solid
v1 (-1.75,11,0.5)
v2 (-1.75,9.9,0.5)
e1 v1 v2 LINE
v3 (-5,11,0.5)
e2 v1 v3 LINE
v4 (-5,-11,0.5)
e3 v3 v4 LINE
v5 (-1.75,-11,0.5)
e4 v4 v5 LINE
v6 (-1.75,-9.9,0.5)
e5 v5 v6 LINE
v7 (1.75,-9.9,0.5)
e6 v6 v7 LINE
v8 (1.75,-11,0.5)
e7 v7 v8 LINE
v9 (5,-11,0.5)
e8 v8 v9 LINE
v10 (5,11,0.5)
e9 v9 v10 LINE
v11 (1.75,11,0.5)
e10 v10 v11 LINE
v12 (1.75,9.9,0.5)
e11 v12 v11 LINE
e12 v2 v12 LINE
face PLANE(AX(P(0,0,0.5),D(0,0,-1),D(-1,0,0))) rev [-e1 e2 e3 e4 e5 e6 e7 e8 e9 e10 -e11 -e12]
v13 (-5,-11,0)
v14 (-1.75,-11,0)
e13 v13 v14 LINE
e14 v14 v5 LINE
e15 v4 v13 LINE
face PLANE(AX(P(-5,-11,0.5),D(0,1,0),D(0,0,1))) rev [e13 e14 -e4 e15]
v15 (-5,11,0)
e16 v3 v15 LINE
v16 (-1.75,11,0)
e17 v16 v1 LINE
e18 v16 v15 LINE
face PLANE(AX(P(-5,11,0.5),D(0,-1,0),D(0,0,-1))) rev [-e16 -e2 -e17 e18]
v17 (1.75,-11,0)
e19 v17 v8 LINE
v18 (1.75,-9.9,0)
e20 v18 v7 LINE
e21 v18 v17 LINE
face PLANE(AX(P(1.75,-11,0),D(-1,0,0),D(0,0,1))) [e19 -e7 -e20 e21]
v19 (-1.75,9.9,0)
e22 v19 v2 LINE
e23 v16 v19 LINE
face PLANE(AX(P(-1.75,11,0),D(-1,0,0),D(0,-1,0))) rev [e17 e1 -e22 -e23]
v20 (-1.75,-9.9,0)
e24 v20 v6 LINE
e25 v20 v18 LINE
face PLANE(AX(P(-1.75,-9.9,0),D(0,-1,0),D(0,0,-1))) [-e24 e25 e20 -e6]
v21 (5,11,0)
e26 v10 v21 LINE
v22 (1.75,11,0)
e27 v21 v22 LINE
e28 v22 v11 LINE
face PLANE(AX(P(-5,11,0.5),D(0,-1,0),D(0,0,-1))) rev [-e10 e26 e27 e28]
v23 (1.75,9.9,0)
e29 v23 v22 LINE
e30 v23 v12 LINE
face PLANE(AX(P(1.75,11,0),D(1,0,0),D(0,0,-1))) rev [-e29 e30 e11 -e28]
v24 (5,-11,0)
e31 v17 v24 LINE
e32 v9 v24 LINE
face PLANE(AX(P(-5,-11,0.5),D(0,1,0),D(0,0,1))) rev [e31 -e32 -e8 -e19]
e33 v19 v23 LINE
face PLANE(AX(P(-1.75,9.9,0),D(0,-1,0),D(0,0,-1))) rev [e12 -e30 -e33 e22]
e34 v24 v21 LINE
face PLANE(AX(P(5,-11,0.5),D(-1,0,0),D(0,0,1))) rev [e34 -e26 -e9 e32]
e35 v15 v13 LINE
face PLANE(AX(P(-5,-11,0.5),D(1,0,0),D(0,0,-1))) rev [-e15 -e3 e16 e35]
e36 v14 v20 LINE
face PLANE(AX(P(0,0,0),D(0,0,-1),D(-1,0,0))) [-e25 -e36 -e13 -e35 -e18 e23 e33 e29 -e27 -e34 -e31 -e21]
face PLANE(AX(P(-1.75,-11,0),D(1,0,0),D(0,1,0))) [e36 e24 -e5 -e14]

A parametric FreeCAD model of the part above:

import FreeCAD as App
import Part
import Sketcher
Q = App.Units.Quantity

doc = App.newDocument("Part")
body = doc.addObject("PartDesign::Body", "Body")

# Sketch on XY plane
sketch1 = body.newObject("Sketcher::SketchObject", "Sketch")
sketch1.AttachmentSupport = (doc.getObject("XY_Plane"), [""])
sketch1.MapMode = "FlatFace"
sketch1.addGeometry([
    Part.LineSegment(App.Vector(-5, 11, 0), App.Vector(-5, -11, 0)),
    Part.LineSegment(App.Vector(-5, -11, 0), App.Vector(5, -11, 0)),
    Part.LineSegment(App.Vector(5, -11, 0), App.Vector(5, 11, 0)),
    Part.LineSegment(App.Vector(5, 11, 0), App.Vector(-5, 11, 0)),
], False)
sketch1.addConstraint([
    Sketcher.Constraint("Coincident", 0, 2, 1, 1),
    Sketcher.Constraint("Coincident", 1, 2, 2, 1),
    Sketcher.Constraint("Coincident", 2, 2, 3, 1),
    Sketcher.Constraint("Coincident", 3, 2, 0, 1),
    Sketcher.Constraint("Vertical", 0),
    Sketcher.Constraint("Horizontal", 1),
    Sketcher.Constraint("Vertical", 2),
    Sketcher.Constraint("Horizontal", 3),
    Sketcher.Constraint("Symmetric", 0, 2, 2, 2, -1, 1),
    Sketcher.Constraint("DistanceX", 1, 1, 1, 2, Q("10 mm")),
    Sketcher.Constraint("DistanceY", 0, 2, 0, 1, Q("22 mm")),
])
pad1 = body.newObject("PartDesign::Pad", "Pad")
pad1.Profile = sketch1
pad1.Length = 0.5

# Sketch on XY plane
sketch2 = body.newObject("Sketcher::SketchObject", "Sketch001")
sketch2.AttachmentSupport = (doc.getObject("XY_Plane"), [""])
sketch2.MapMode = "FlatFace"
sketch2.AttachmentOffset = App.Placement(App.Vector(0, 0, 0.5), App.Rotation())
sketch2.addGeometry([
    Part.LineSegment(App.Vector(-1.8, 11, 0), App.Vector(-1.8, 9.9, 0)),
    Part.LineSegment(App.Vector(-1.8, 9.9, 0), App.Vector(1.8, 9.9, 0)),
    Part.LineSegment(App.Vector(1.8, 9.9, 0), App.Vector(1.8, 11, 0)),
    Part.LineSegment(App.Vector(1.8, 11, 0), App.Vector(-1.8, 11, 0)),
], False)
sketch2.addConstraint([
    Sketcher.Constraint("Coincident", 0, 2, 1, 1),
    Sketcher.Constraint("Coincident", 1, 2, 2, 1),
    Sketcher.Constraint("Coincident", 2, 2, 3, 1),
    Sketcher.Constraint("Coincident", 3, 2, 0, 1),
    Sketcher.Constraint("Vertical", 0),
    Sketcher.Constraint("Horizontal", 1),
    Sketcher.Constraint("Vertical", 2),
    Sketcher.Constraint("Horizontal", 3),
    Sketcher.Constraint("DistanceX", 1, 1, 1, 2, Q("3.5 mm")),
    Sketcher.Constraint("DistanceY", 0, 2, 0, 1, Q("1.1 mm")),
    Sketcher.Constraint("DistanceY", -1, 1, 2, 2, Q("11 mm")),
    Sketcher.Constraint("DistanceX", 0, 2, -1, 1, Q("1.75 mm")),
])
pocket1 = body.newObject("PartDesign::Pocket", "Pocket")
pocket1.Profile = sketch2
pocket1.Type = "ThroughAll"
doc.recompute()

mirrored = body.newObject("PartDesign::Mirrored", "Mirrored")
mirrored.Originals = [pocket1]
mirrored.MirrorPlane = (doc.getObject("XZ_Plane"), [""])
body.Tip = mirrored

doc.recompute()
